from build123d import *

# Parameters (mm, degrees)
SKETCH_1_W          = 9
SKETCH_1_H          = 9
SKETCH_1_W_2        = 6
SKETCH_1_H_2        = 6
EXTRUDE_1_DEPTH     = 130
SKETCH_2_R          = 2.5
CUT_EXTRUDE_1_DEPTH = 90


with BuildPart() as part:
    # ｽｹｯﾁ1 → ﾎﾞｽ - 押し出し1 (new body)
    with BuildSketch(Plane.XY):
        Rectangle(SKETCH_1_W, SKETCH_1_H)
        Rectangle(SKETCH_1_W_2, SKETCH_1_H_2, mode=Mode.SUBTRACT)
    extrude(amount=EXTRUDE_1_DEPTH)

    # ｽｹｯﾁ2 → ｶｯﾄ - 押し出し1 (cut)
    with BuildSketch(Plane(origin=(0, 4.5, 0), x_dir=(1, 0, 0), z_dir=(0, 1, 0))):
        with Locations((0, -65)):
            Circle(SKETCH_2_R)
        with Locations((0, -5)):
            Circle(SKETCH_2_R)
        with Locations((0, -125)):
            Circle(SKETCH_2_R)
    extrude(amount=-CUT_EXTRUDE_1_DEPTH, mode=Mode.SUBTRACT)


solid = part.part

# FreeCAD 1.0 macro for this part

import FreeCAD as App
import Part
import Sketcher

doc = App.newDocument("Part")
body = doc.addObject("PartDesign::Body", "Body")

# Sketch on XY plane
sketch1 = body.newObject("Sketcher::SketchObject", "Sketch")
sketch1.AttachmentSupport = (doc.getObject("XY_Plane"), [""])
sketch1.MapMode = "FlatFace"
sketch1.addGeometry(Part.LineSegment(App.Vector(-4, 4, 0), App.Vector(-4, -4, 0)), False)
sketch1.addGeometry(Part.LineSegment(App.Vector(-4, -4, 0), App.Vector(4, -4, 0)), False)
sketch1.addGeometry(Part.LineSegment(App.Vector(4, -4, 0), App.Vector(4, 4, 0)), False)
sketch1.addGeometry(Part.LineSegment(App.Vector(4, 4, 0), App.Vector(-4, 4, 0)), False)
sketch1.addGeometry(Part.LineSegment(App.Vector(3, -3, 0), App.Vector(-3, -3, 0)), False)
sketch1.addGeometry(Part.LineSegment(App.Vector(-3, -3, 0), App.Vector(-3, 3, 0)), False)
sketch1.addGeometry(Part.LineSegment(App.Vector(-3, 3, 0), App.Vector(3, 3, 0)), False)
sketch1.addGeometry(Part.LineSegment(App.Vector(3, 3, 0), App.Vector(3, -3, 0)), False)
sketch1.addConstraint(Sketcher.Constraint("Coincident", 0, 2, 1, 1))
sketch1.addConstraint(Sketcher.Constraint("Coincident", 1, 2, 2, 1))
sketch1.addConstraint(Sketcher.Constraint("Coincident", 2, 2, 3, 1))
sketch1.addConstraint(Sketcher.Constraint("Coincident", 3, 2, 0, 1))
sketch1.addConstraint(Sketcher.Constraint("Coincident", 4, 2, 5, 1))
sketch1.addConstraint(Sketcher.Constraint("Coincident", 5, 2, 6, 1))
sketch1.addConstraint(Sketcher.Constraint("Coincident", 6, 2, 7, 1))
sketch1.addConstraint(Sketcher.Constraint("Coincident", 7, 2, 4, 1))
sketch1.addConstraint(Sketcher.Constraint("Vertical", 0))
sketch1.addConstraint(Sketcher.Constraint("Horizontal", 1))
sketch1.addConstraint(Sketcher.Constraint("Vertical", 2))
sketch1.addConstraint(Sketcher.Constraint("Horizontal", 3))
sketch1.addConstraint(Sketcher.Constraint("Horizontal", 4))
sketch1.addConstraint(Sketcher.Constraint("Vertical", 5))
sketch1.addConstraint(Sketcher.Constraint("Horizontal", 6))
sketch1.addConstraint(Sketcher.Constraint("Vertical", 7))
sketch1.addConstraint(Sketcher.Constraint("Symmetric", 0, 2, 2, 2, -1, 1))
sketch1.addConstraint(Sketcher.Constraint("Symmetric", 4, 2, 6, 2, -1, 1))
sketch1.addConstraint(Sketcher.Constraint("Equal", 3, 0))
sketch1.addConstraint(Sketcher.Constraint("Equal", 6, 5))
sketch1.addConstraint(Sketcher.Constraint("DistanceX", 1, 1, 1, 2, 9.0))
sketch1.addConstraint(Sketcher.Constraint("DistanceX", 4, 2, 4, 1, 6.0))
pad1 = body.newObject("PartDesign::Pad", "Pad")
pad1.Profile = sketch1
pad1.Length = 130

# Sketch on XZ plane
sketch2 = body.newObject("Sketcher::SketchObject", "Sketch001")
sketch2.AttachmentSupport = (doc.getObject("XZ_Plane"), [""])
sketch2.MapMode = "FlatFace"
sketch2.AttachmentOffset = App.Placement(App.Vector(0, 0, -4.5), App.Rotation())
sketch2.addGeometry(Part.Circle(App.Vector(0, 65, 0), App.Vector(0, 0, 1), 2.5), False)
sketch2.addGeometry(Part.Circle(App.Vector(0, 5, 0), App.Vector(0, 0, 1), 2.5), False)
sketch2.addGeometry(Part.Circle(App.Vector(0, 125, 0), App.Vector(0, 0, 1), 2.5), False)
sketch2.addConstraint(Sketcher.Constraint("Equal", 0, 1))
sketch2.addConstraint(Sketcher.Constraint("Equal", 1, 2))
sketch2.addConstraint(Sketcher.Constraint("PointOnObject", 0, 3, -2))
sketch2.addConstraint(Sketcher.Constraint("PointOnObject", 1, 3, -2))
sketch2.addConstraint(Sketcher.Constraint("PointOnObject", 2, 3, -2))
sketch2.addConstraint(Sketcher.Constraint("Diameter", 0, 5.0))
sketch2.addConstraint(Sketcher.Constraint("DistanceY", -1, 1, 0, 3, 65.0))
sketch2.addConstraint(Sketcher.Constraint("DistanceY", -1, 1, 1, 3, 5.0))
sketch2.addConstraint(Sketcher.Constraint("DistanceY", -1, 1, 2, 3, 125.0))
pocket1 = body.newObject("PartDesign::Pocket", "Pocket")
pocket1.Profile = sketch2
pocket1.Length = 90
pocket1.Reversed = True

doc.recompute()
